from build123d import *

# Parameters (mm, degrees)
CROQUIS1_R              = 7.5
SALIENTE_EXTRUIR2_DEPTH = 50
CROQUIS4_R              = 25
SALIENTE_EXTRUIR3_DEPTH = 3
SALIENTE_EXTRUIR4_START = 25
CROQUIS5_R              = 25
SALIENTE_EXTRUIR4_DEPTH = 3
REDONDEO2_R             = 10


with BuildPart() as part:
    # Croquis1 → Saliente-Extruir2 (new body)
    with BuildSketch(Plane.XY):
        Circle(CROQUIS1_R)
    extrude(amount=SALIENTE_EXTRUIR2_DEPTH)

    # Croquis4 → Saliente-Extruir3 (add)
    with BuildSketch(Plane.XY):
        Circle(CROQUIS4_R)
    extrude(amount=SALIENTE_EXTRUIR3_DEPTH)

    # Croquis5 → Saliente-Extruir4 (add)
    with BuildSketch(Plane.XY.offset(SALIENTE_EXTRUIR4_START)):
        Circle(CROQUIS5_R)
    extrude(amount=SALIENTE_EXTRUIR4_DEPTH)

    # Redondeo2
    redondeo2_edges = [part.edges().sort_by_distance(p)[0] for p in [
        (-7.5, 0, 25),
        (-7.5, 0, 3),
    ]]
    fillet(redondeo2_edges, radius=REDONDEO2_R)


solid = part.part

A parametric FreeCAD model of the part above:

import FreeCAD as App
import Part
import Sketcher
from FreeCAD import Vector


def edges_at(feature, points):
    """Names of the edges that pass closest to the given points."""
    edges = feature.Shape.Edges
    near = lambda p: min(range(len(edges)), key=lambda i: edges[i].distToShape(Part.Vertex(*p))[0])
    return sorted({f"Edge{near(p) + 1}" for p in points})

doc = App.newDocument("Part")
body = doc.addObject("PartDesign::Body", "Body")

# Sketch on XY plane
sketch1 = body.newObject("Sketcher::SketchObject", "Sketch")
sketch1.AttachmentSupport = (doc.getObject("XY_Plane"), [""])
sketch1.MapMode = "FlatFace"
sketch1.addGeometry(Part.Circle(Vector(0, 0, 0), Vector(0, 0, 1), 8), False)
sketch1.addConstraint([
    Sketcher.Constraint("Coincident", 0, 3, -1, 1),
    Sketcher.Constraint("Diameter", 0, 15.0),
])
pad1 = body.newObject("PartDesign::Pad", "Pad")
pad1.Profile = sketch1
pad1.Length = 50

# Sketch on XY plane
sketch2 = body.newObject("Sketcher::SketchObject", "Sketch001")
sketch2.AttachmentSupport = (doc.getObject("XY_Plane"), [""])
sketch2.MapMode = "FlatFace"
sketch2.addGeometry(Part.Circle(Vector(0, 0, 0), Vector(0, 0, 1), 25), False)
sketch2.addConstraint([
    Sketcher.Constraint("Coincident", 0, 3, -1, 1),
    Sketcher.Constraint("Diameter", 0, 50.0),
])
pad2 = body.newObject("PartDesign::Pad", "Pad001")
pad2.Profile = sketch2
pad2.Length = 3

# Sketch on XY plane
sketch3 = body.newObject("Sketcher::SketchObject", "Sketch002")
sketch3.AttachmentSupport = (doc.getObject("XY_Plane"), [""])
sketch3.MapMode = "FlatFace"
sketch3.AttachmentOffset = App.Placement(Vector(0, 0, 25), App.Rotation())
sketch3.addGeometry(Part.Circle(Vector(0, 0, 0), Vector(0, 0, 1), 25), False)
sketch3.addConstraint([
    Sketcher.Constraint("Coincident", 0, 3, -1, 1),
    Sketcher.Constraint("Diameter", 0, 50.0),
])
pad3 = body.newObject("PartDesign::Pad", "Pad002")
pad3.Profile = sketch3
pad3.Length = 3
doc.recompute()

fillet = body.newObject("PartDesign::Fillet", "Fillet")
fillet.Base = (pad3, edges_at(pad3, [(-7.5, 0, 25), (-7.5, 0, 3)]))
fillet.Radius = 10

doc.recompute()
